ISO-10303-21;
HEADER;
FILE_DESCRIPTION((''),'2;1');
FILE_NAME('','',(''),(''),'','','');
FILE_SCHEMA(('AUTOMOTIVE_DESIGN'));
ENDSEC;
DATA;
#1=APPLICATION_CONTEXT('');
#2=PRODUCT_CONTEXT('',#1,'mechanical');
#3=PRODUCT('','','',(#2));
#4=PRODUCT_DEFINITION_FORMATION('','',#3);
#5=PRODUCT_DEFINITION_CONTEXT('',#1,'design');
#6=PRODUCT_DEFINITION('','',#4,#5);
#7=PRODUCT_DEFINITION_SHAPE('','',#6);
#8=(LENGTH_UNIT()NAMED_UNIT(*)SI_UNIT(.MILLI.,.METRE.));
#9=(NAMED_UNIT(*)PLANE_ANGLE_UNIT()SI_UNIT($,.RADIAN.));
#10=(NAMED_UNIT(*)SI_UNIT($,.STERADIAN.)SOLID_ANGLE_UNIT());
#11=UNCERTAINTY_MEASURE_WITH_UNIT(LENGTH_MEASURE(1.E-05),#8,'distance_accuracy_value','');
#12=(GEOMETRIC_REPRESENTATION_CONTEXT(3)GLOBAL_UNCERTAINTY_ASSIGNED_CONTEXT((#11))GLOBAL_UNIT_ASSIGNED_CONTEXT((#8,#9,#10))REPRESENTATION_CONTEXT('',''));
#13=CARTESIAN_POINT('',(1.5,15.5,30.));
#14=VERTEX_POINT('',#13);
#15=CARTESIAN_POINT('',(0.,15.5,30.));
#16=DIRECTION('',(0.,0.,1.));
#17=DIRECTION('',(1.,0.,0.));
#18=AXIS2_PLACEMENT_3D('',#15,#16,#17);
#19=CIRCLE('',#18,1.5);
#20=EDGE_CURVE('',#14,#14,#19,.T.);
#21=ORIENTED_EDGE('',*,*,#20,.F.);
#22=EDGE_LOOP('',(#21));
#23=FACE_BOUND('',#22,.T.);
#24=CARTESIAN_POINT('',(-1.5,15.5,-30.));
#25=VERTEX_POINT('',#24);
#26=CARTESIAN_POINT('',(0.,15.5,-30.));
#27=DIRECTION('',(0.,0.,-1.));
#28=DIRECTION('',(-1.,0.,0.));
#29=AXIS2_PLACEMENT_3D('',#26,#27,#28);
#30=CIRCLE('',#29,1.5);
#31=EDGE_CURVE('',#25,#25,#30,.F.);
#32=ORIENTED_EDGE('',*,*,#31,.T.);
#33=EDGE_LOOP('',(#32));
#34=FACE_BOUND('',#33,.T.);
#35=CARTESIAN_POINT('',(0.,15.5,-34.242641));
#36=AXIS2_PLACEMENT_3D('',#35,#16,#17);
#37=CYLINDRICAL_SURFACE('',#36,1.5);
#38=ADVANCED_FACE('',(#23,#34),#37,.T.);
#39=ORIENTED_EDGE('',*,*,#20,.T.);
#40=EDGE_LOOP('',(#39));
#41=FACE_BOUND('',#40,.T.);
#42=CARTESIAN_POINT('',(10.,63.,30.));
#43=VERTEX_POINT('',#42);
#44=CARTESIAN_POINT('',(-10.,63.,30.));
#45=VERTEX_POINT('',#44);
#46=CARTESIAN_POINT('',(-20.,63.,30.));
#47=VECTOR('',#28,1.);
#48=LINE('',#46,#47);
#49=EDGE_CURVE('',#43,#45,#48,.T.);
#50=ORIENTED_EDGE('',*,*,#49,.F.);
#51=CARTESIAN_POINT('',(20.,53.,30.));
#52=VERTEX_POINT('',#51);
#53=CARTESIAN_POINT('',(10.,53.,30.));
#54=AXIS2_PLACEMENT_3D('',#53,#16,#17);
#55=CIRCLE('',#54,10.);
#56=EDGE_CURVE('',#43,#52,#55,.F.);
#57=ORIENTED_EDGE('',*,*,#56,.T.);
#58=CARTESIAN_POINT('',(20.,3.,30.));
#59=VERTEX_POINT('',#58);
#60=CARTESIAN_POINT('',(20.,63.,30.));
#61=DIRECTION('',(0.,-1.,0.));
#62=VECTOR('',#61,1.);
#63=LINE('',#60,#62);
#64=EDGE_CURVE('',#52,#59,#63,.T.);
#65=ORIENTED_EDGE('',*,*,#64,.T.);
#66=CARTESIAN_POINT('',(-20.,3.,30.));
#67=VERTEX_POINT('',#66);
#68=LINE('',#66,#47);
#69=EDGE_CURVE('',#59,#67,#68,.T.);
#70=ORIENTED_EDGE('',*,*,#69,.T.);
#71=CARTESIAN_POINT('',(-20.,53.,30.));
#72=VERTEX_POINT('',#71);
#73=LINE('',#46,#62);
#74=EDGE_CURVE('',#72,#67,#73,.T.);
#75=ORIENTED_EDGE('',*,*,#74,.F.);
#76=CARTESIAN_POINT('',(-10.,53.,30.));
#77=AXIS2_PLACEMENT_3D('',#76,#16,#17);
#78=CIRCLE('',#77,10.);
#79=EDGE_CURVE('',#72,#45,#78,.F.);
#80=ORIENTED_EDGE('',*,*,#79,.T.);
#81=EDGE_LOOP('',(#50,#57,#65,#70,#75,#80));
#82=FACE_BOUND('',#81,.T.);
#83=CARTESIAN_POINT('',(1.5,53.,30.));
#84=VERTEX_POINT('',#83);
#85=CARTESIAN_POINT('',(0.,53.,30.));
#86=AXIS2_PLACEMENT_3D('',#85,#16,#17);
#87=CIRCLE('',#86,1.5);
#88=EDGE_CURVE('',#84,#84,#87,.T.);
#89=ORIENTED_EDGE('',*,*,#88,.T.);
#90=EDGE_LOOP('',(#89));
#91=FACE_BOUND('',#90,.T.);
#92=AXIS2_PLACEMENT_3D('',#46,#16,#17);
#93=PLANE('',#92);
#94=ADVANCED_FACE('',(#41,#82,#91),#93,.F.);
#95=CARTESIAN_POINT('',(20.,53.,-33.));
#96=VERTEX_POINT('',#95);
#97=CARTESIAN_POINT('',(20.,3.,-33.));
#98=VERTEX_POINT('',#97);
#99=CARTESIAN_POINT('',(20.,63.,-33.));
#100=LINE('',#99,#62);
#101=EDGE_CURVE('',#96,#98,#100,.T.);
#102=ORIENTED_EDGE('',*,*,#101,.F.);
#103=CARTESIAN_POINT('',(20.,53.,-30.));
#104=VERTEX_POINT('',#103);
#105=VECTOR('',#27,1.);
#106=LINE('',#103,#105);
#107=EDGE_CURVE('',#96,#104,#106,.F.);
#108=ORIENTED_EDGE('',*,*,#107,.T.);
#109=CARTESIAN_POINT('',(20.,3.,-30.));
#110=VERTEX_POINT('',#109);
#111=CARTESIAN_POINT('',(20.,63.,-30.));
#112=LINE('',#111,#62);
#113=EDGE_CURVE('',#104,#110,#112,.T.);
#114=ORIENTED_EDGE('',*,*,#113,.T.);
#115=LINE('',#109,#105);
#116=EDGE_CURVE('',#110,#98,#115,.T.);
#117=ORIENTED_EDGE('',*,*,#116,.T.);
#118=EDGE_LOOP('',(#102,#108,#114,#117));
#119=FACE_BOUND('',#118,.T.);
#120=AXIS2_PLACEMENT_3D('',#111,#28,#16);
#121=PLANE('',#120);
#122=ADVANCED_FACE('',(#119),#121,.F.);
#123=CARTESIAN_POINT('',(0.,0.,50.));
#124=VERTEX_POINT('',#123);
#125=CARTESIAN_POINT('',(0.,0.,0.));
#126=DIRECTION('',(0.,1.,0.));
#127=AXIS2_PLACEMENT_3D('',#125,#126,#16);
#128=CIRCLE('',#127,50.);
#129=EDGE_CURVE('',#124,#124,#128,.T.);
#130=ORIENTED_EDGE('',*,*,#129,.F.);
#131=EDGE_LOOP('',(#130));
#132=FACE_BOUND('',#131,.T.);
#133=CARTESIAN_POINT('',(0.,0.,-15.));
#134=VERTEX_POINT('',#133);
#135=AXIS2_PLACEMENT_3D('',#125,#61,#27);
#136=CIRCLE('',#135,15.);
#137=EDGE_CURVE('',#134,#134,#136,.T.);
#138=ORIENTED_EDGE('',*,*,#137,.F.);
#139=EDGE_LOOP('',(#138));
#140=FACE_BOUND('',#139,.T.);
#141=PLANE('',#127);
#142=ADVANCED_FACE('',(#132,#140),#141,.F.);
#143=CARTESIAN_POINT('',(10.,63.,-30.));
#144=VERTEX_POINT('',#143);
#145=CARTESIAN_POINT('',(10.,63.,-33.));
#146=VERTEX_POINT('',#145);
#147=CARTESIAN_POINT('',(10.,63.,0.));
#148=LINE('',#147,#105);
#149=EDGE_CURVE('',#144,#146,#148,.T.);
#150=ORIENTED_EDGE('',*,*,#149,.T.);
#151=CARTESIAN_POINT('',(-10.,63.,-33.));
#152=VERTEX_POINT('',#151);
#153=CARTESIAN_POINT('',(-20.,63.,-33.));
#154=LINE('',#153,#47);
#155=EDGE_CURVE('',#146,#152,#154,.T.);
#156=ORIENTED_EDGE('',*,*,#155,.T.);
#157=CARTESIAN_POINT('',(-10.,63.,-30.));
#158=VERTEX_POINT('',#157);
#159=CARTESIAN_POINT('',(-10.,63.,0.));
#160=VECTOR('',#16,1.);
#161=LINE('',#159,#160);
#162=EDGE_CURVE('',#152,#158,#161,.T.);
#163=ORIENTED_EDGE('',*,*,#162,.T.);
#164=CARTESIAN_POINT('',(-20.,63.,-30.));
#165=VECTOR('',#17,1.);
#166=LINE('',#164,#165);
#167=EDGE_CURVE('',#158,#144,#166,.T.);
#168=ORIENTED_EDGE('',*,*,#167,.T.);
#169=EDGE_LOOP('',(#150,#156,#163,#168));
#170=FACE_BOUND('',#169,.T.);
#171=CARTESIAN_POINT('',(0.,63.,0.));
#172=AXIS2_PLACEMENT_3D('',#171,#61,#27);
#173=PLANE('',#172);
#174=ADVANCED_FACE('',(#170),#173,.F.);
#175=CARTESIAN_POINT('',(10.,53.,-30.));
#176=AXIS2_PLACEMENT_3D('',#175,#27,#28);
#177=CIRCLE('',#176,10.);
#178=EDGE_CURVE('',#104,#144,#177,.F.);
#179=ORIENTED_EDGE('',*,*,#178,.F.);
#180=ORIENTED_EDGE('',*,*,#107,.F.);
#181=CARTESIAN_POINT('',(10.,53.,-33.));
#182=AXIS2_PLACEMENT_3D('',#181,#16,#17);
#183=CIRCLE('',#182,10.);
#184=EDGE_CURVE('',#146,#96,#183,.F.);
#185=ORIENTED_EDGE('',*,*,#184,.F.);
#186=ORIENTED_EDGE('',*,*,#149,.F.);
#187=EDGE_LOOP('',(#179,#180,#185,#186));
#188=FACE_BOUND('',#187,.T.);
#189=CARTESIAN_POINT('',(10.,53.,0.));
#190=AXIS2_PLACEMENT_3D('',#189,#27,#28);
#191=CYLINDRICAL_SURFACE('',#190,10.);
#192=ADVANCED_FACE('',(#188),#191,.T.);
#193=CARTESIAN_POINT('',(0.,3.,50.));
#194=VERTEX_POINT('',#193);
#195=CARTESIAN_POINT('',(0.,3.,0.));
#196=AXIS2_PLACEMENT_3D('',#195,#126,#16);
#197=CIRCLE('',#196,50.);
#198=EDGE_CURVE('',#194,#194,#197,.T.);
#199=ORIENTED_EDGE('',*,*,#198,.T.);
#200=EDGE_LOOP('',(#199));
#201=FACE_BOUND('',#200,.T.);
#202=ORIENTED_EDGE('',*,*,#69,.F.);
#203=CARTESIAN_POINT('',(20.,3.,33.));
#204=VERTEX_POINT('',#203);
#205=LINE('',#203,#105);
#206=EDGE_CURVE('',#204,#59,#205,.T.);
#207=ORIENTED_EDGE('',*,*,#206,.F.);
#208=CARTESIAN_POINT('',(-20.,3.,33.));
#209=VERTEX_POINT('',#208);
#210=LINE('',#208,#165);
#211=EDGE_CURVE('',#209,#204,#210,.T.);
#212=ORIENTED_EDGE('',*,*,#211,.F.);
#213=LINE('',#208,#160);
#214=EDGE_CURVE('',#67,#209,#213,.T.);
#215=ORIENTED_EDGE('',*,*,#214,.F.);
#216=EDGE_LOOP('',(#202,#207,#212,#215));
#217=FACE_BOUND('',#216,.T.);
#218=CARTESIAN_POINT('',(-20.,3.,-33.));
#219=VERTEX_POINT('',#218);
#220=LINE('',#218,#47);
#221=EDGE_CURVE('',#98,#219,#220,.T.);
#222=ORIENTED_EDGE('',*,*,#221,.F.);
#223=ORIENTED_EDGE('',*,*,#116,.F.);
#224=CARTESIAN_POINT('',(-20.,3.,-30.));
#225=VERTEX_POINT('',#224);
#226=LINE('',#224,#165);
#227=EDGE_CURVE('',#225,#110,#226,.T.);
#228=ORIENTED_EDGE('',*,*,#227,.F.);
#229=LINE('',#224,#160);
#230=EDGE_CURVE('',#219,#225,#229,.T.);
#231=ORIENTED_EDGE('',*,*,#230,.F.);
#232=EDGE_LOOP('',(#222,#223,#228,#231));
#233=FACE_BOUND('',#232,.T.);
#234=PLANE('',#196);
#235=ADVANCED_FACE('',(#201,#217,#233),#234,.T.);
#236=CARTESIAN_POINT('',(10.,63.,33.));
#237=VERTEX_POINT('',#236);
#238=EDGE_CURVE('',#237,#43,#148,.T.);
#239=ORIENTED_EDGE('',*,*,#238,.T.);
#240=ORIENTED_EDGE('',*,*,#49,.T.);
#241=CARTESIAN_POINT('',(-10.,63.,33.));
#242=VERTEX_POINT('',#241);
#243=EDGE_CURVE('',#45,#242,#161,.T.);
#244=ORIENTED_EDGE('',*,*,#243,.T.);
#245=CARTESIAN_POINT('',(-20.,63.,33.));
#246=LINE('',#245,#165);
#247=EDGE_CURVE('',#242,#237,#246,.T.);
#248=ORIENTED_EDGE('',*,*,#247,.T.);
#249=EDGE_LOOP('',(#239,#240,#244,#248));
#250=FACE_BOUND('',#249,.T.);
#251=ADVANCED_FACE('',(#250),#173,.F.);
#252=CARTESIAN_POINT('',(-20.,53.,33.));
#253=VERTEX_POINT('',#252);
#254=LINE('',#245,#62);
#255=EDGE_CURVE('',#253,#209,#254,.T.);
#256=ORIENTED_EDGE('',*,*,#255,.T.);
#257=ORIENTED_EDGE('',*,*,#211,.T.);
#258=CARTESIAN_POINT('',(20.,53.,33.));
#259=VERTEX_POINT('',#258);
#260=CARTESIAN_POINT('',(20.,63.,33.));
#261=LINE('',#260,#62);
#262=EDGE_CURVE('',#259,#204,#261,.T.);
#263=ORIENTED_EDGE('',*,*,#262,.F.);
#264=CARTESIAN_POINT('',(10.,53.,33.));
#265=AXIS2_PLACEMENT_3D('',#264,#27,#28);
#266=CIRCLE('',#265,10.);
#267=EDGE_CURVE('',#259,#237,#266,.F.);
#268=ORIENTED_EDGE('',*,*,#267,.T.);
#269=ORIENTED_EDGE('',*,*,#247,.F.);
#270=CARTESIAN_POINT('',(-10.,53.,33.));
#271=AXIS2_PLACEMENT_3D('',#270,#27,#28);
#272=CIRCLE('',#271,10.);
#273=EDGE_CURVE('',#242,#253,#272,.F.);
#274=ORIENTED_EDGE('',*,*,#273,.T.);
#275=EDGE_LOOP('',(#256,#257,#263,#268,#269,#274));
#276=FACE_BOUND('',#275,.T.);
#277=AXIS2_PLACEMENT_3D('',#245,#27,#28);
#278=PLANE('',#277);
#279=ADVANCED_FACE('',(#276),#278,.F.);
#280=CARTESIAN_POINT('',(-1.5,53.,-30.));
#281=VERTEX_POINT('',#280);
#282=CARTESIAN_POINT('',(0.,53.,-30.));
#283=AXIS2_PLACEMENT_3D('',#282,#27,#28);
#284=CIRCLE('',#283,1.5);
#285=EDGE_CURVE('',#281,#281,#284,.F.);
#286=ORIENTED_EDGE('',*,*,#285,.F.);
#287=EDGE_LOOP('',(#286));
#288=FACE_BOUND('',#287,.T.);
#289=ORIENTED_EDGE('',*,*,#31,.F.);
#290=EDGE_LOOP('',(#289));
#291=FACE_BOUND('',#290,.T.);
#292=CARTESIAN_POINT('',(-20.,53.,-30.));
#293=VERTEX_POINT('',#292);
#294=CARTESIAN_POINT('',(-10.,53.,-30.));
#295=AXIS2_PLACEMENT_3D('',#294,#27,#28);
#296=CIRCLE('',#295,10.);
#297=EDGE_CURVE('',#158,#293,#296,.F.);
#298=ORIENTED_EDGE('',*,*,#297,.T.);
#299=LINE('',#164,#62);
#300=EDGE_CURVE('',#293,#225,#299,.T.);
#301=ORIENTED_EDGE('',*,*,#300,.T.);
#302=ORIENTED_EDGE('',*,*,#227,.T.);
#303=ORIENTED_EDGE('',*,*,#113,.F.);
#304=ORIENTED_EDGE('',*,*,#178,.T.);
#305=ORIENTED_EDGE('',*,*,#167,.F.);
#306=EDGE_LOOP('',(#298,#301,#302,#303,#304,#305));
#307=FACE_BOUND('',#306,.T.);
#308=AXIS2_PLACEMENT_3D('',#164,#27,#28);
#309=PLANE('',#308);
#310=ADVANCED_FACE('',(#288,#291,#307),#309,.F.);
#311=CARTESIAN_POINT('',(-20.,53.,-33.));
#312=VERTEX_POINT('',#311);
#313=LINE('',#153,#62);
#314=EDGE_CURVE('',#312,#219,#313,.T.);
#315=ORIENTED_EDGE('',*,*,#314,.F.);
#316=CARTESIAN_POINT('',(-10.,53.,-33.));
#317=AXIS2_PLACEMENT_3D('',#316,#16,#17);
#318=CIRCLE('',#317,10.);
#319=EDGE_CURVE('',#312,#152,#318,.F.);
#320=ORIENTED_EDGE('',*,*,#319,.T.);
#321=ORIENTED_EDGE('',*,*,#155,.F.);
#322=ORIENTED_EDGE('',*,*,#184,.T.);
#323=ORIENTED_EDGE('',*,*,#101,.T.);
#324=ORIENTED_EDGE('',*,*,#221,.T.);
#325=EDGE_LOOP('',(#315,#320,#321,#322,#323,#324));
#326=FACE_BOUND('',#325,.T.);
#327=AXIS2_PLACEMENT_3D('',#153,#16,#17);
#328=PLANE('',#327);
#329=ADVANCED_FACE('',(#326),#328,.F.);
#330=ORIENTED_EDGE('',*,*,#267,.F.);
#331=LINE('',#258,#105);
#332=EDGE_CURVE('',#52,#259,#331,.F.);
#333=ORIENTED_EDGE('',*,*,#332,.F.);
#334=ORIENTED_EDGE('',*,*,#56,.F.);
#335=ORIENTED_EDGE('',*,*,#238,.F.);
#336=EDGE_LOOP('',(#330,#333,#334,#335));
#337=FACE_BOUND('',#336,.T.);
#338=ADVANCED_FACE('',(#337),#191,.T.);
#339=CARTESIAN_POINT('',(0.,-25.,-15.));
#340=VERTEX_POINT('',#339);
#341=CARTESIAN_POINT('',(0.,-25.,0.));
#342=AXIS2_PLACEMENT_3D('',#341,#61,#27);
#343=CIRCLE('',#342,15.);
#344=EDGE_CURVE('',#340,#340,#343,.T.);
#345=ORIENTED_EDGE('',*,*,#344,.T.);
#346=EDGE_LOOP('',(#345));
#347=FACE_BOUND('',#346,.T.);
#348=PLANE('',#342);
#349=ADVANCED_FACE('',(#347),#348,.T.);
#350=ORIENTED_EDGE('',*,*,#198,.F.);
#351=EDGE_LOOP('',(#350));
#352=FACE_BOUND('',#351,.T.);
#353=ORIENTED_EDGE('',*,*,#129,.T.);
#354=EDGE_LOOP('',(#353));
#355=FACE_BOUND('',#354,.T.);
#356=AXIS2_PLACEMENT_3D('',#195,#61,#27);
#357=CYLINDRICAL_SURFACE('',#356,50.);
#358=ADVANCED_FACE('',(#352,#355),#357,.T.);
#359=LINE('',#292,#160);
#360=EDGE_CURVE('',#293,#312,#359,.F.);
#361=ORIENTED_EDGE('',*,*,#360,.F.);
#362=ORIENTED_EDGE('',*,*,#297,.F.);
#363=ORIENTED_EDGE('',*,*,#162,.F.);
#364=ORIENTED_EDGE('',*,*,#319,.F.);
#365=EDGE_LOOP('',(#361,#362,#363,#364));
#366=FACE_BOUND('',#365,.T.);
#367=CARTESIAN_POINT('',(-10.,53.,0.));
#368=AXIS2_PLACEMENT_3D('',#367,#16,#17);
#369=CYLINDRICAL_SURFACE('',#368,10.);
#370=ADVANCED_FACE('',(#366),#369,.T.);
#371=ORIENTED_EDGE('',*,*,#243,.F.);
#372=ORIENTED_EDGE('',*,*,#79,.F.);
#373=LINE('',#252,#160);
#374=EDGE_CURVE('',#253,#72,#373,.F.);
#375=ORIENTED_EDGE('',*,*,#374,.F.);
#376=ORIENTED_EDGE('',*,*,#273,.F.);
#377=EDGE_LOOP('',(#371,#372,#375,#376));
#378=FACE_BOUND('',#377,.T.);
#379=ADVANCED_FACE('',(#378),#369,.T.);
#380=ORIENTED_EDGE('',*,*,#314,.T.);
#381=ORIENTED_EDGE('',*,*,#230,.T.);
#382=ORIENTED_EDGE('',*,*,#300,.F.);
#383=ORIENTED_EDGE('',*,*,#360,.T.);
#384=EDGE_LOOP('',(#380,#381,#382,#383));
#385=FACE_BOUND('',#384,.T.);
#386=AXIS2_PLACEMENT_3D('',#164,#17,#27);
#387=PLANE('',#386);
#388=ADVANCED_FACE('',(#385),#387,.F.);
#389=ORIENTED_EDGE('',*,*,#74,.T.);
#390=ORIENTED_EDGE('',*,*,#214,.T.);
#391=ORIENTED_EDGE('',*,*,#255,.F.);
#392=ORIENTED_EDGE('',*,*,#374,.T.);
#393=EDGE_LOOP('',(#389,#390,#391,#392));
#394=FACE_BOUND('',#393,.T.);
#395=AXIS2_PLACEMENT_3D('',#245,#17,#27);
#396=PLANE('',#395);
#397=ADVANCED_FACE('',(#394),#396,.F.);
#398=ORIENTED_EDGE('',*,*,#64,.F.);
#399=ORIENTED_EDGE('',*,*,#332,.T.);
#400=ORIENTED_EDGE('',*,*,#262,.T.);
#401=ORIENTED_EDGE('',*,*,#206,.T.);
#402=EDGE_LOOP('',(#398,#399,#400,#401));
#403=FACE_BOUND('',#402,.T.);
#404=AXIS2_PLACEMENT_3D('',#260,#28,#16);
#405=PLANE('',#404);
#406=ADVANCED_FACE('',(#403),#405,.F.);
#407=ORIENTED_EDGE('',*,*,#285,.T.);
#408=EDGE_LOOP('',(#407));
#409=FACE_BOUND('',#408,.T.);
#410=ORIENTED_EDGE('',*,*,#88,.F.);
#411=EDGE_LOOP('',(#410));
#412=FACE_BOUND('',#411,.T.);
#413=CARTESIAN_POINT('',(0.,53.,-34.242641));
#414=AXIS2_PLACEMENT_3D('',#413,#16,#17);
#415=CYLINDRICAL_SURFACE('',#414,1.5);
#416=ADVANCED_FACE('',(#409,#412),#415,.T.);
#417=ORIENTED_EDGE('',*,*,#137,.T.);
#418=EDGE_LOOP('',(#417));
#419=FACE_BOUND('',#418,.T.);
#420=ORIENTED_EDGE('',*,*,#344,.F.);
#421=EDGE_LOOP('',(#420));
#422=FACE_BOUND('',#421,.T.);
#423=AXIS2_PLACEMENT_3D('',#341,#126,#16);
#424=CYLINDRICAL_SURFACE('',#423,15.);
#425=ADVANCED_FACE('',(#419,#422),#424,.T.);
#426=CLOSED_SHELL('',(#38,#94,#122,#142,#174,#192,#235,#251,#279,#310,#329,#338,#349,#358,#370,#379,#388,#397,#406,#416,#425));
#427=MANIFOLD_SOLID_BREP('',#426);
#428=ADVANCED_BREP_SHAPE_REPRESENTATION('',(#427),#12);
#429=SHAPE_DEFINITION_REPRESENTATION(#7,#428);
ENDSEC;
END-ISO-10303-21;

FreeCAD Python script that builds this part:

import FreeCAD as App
import Part
import Sketcher


def edges_at(feature, points):
    """Names of the edges that pass closest to the given points."""
    edges = feature.Shape.Edges
    near = lambda p: min(range(len(edges)), key=lambda i: edges[i].distToShape(Part.Vertex(*p))[0])
    return sorted({f"Edge{near(p) + 1}" for p in points})


def add_polygon(sketch, points):
    """Adds a closed chain of lines whose ends are joined by coincident constraints."""
    first, n = sketch.GeometryCount, len(points)
    for a, b in zip(points, points[1:] + points[:1]):
        sketch.addGeometry(Part.LineSegment(App.Vector(*a, 0), App.Vector(*b, 0)), False)
    for i in range(n):
        sketch.addConstraint(Sketcher.Constraint("Coincident", first + i, 2, first + (i + 1) % n, 1))

doc = App.newDocument("Part")
params = doc.addObject("Spreadsheet::Sheet", "Params")
for row, (alias, value) in enumerate([
    ("sketch1_diameter", "100 mm"),
    ("pad1_length", "3 mm"),
    ("sketch2_diameter", "30 mm"),
    ("pad2_length", "25 mm"),
    ("sketch3_width", "40 mm"),
    ("sketch3_height", "3 mm"),
    ("pad3_length", "60 mm"),
    ("sketch4_diameter", "3 mm"),
    ("pad4_length", "63 mm"),
    ("fillet_radius", "10 mm"),
], start=1):
    params.set(f"A{row}", alias)
    params.set(f"B{row}", "=" + value)
    params.setAlias(f"B{row}", alias)

body = doc.addObject("PartDesign::Body", "Body")

# Sketch on XZ plane
sketch1 = doc.addObject("Sketcher::SketchObject", "Sketch")
body.addObject(sketch1)
sketch1.AttachmentSupport = (doc.XZ_Plane, [""])
sketch1.MapMode = "FlatFace"
sketch1.addGeometry(Part.Circle(App.Vector(0, 0, 0), App.Vector(0, 0, 1), 50), False)
sketch1.addConstraint([
    Sketcher.Constraint("Coincident", 0, 3, -1, 1),
    Sketcher.Constraint("Diameter", 0, 100.0),
])
sketch1.setExpression("Constraints[1]", "Params.sketch1_diameter")
pad1 = doc.addObject("PartDesign::Pad", "Pad")
body.addObject(pad1)
pad1.Profile = sketch1
pad1.setExpression("Length", "Params.pad1_length")
pad1.Reversed = True

# Sketch on XZ plane
sketch2 = doc.addObject("Sketcher::SketchObject", "Sketch001")
body.addObject(sketch2)
sketch2.AttachmentSupport = (doc.XZ_Plane, [""])
sketch2.MapMode = "FlatFace"
sketch2.addGeometry(Part.Circle(App.Vector(0, 0, 0), App.Vector(0, 0, 1), 15), False)
sketch2.addConstraint([
    Sketcher.Constraint("Coincident", 0, 3, -1, 1),
    Sketcher.Constraint("Diameter", 0, 30.0),
])
sketch2.setExpression("Constraints[1]", "Params.sketch2_diameter")
pad2 = doc.addObject("PartDesign::Pad", "Pad001")
body.addObject(pad2)
pad2.Profile = sketch2
pad2.setExpression("Length", "Params.pad2_length")

# Sketch on XZ plane
sketch3 = doc.addObject("Sketcher::SketchObject", "Sketch002")
body.addObject(sketch3)
sketch3.AttachmentSupport = (doc.XZ_Plane, [""])
sketch3.MapMode = "FlatFace"
sketch3.AttachmentOffset = App.Placement(App.Vector(0, 0, -3), App.Rotation())
add_polygon(sketch3, [(-20, 30), (-20, 33), (20, 33), (20, 30)])  # lines 0-3
add_polygon(sketch3, [(-20, -33), (-20, -30), (20, -30), (20, -33)])  # lines 4-7
sketch3.addConstraint([
    Sketcher.Constraint("Vertical", 0),
    Sketcher.Constraint("Horizontal", 1),
    Sketcher.Constraint("Vertical", 2),
    Sketcher.Constraint("Horizontal", 3),
    Sketcher.Constraint("Vertical", 4),
    Sketcher.Constraint("Horizontal", 5),
    Sketcher.Constraint("Vertical", 6),
    Sketcher.Constraint("Horizontal", 7),
    Sketcher.Constraint("Symmetric", 2, 2, 4, 2, -1, 1),
    Sketcher.Constraint("Symmetric", 0, 2, 6, 2, -1, 1),
    Sketcher.Constraint("Vertical", 3, 2, 4, 2),
    Sketcher.Constraint("DistanceX", 1, 1, 1, 2, 40.0),
    Sketcher.Constraint("DistanceY", 0, 1, 0, 2, 3.0),
    Sketcher.Constraint("DistanceY", -1, 1, 0, 2, 33.0),
])
sketch3.setExpression("Constraints[19]", "Params.sketch3_width")
sketch3.setExpression("Constraints[20]", "Params.sketch3_height")
pad3 = doc.addObject("PartDesign::Pad", "Pad002")
body.addObject(pad3)
pad3.Profile = sketch3
pad3.setExpression("Length", "Params.pad3_length")
pad3.Reversed = True

# Sketch on XY plane
sketch4 = doc.addObject("Sketcher::SketchObject", "Sketch003")
body.addObject(sketch4)
sketch4.AttachmentSupport = (doc.XY_Plane, [""])
sketch4.MapMode = "FlatFace"
sketch4.AttachmentOffset = App.Placement(App.Vector(0, 0, 33), App.Rotation())
sketch4.addGeometry([
    Part.Circle(App.Vector(0, 53, 0), App.Vector(0, 0, 1), 1.5),
    Part.Circle(App.Vector(0, 15.5, 0), App.Vector(0, 0, 1), 1.5),
], False)
sketch4.addConstraint([
    Sketcher.Constraint("Equal", 0, 1),
    Sketcher.Constraint("PointOnObject", 0, 3, -2),
    Sketcher.Constraint("PointOnObject", 1, 3, -2),
    Sketcher.Constraint("Diameter", 0, 3.0),
    Sketcher.Constraint("DistanceY", -1, 1, 0, 3, 53.0),
    Sketcher.Constraint("DistanceY", -1, 1, 1, 3, 15.5),
])
sketch4.setExpression("Constraints[3]", "Params.sketch4_diameter")
pad4 = doc.addObject("PartDesign::Pad", "Pad003")
body.addObject(pad4)
pad4.Profile = sketch4
pad4.setExpression("Length", "Params.pad4_length")
pad4.Reversed = True
doc.recompute()

fillet = doc.addObject("PartDesign::Fillet", "Fillet")
body.addObject(fillet)
fillet.Base = (pad4, edges_at(pad4, [
    (-20, 63, 31.5),
    (20, 63, 31.5),
    (-20, 63, -31.5),
    (20, 63, -31.5),
]))
fillet.setExpression("Radius", "Params.fillet_radius")

doc.recompute()
